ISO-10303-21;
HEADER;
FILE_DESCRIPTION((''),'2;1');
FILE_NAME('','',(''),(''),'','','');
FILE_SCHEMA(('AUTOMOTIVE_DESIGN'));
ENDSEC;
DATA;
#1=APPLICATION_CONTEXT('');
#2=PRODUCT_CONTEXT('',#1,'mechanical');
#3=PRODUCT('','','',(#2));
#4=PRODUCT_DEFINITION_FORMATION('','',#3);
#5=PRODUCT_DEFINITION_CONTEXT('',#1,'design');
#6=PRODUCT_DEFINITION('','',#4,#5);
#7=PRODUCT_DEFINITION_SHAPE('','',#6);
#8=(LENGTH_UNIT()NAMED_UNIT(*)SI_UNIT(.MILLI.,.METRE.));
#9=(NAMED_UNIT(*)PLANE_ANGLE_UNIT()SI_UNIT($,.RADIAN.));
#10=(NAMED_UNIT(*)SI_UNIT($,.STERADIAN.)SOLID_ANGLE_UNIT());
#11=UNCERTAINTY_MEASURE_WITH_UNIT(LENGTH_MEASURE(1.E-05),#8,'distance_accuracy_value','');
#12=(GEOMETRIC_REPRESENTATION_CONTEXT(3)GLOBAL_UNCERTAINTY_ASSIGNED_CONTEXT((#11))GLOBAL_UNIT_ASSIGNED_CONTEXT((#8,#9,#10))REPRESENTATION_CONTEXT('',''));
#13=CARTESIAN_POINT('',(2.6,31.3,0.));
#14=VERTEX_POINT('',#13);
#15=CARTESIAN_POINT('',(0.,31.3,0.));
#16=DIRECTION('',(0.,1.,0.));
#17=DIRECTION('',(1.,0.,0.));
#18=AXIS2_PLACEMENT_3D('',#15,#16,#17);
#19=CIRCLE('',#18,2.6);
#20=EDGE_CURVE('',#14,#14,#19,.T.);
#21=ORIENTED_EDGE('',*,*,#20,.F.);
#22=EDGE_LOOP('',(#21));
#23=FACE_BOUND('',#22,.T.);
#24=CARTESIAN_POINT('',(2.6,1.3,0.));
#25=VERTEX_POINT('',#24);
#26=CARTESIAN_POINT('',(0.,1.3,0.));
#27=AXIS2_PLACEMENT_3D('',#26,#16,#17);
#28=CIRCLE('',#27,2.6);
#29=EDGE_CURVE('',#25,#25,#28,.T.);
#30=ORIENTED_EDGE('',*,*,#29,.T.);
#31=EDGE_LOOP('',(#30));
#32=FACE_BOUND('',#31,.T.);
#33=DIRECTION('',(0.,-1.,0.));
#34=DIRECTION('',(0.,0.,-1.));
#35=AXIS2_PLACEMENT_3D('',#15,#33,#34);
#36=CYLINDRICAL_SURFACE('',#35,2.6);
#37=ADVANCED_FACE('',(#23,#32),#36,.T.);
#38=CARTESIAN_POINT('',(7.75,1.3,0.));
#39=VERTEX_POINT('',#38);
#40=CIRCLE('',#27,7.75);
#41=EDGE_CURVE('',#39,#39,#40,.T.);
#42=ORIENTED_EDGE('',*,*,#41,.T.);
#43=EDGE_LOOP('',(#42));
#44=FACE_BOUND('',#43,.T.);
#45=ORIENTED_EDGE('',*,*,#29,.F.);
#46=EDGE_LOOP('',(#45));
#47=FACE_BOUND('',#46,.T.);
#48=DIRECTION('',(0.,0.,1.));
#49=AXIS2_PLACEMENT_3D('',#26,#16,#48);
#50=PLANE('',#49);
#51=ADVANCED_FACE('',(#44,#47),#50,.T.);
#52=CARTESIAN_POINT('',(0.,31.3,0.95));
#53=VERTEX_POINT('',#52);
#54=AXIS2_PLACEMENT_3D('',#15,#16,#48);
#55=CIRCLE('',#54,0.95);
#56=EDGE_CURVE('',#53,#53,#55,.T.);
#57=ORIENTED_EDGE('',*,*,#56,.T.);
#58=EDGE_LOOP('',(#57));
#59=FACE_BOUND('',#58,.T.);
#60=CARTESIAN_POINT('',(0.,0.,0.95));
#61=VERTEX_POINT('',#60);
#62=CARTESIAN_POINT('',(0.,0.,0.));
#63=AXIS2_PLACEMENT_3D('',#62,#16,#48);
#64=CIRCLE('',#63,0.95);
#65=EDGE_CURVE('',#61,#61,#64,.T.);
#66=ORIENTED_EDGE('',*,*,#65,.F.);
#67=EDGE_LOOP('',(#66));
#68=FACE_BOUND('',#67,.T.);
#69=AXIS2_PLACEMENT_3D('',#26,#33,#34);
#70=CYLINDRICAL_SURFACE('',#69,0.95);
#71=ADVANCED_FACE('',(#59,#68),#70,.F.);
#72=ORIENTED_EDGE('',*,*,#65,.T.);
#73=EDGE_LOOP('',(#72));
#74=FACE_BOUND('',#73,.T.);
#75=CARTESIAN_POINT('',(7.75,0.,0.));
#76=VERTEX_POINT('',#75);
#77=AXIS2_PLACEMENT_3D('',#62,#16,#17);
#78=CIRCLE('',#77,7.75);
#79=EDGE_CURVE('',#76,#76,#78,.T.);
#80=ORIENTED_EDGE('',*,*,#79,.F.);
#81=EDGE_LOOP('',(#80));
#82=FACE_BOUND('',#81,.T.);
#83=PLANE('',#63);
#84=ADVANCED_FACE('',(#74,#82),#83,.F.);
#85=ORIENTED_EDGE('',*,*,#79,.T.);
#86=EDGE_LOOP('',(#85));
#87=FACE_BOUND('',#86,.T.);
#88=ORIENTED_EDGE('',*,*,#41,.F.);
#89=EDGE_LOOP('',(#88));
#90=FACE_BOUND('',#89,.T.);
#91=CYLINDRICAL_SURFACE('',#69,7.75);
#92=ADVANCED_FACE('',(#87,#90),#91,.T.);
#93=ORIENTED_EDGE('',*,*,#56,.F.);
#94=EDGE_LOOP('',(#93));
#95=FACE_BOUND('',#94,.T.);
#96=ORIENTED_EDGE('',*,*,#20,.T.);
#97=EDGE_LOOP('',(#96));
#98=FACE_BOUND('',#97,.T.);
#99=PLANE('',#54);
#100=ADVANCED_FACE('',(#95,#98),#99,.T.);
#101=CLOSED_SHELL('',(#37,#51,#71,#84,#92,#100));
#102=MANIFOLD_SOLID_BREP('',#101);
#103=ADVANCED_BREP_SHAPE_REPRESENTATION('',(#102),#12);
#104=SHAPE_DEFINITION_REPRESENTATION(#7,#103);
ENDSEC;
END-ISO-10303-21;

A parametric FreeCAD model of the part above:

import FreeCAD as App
import Part
import Sketcher
Q = App.Units.Quantity

doc = App.newDocument("Part")
params = doc.addObject("Spreadsheet::Sheet", "Params")
for row, (alias, value) in enumerate([
    ("sketch1_diameter", "15.5 mm"),
    ("sketch1_diameter2", "1.9 mm"),
    ("pad1_length", "1.3 mm"),
    ("sketch2_diameter", "5.2 mm"),
    ("sketch2_diameter2", "1.9 mm"),
    ("pad2_length", "30 mm"),
], start=1):
    params.set(f"A{row}", alias)
    params.set(f"B{row}", "=" + value)
    params.setAlias(f"B{row}", alias)

body = doc.addObject("PartDesign::Body", "Body")

# Sketch on XZ plane
sketch1 = body.newObject("Sketcher::SketchObject", "Sketch")
sketch1.AttachmentSupport = (doc.getObject("XZ_Plane"), [""])
sketch1.MapMode = "FlatFace"
sketch1.addGeometry(Part.Circle(App.Vector(0, 0, 0), App.Vector(0, 0, 1), 7.8), False)
sketch1.addGeometry(Part.Circle(App.Vector(0, 0, 0), App.Vector(0, 0, 1), 0.9), False)
sketch1.addConstraint(Sketcher.Constraint("Coincident", 0, 3, -1, 1))
sketch1.addConstraint(Sketcher.Constraint("Coincident", 1, 3, -1, 1))
sketch1.addConstraint(Sketcher.Constraint("Diameter", 0, Q("15.5 mm")))
sketch1.addConstraint(Sketcher.Constraint("Diameter", 1, Q("1.9 mm")))
sketch1.setExpression("Constraints[2]", "Params.sketch1_diameter")
sketch1.setExpression("Constraints[3]", "Params.sketch1_diameter2")
pad1 = body.newObject("PartDesign::Pad", "Pad")
pad1.Profile = sketch1
pad1.setExpression("Length", "Params.pad1_length")
pad1.Reversed = True

# Sketch on XZ plane
sketch2 = body.newObject("Sketcher::SketchObject", "Sketch001")
sketch2.AttachmentSupport = (doc.getObject("XZ_Plane"), [""])
sketch2.MapMode = "FlatFace"
sketch2.AttachmentOffset = App.Placement(App.Vector(0, 0, -1.3), App.Rotation())
sketch2.addGeometry(Part.Circle(App.Vector(0, 0, 0), App.Vector(0, 0, 1), 2.6), False)
sketch2.addGeometry(Part.Circle(App.Vector(0, 0, 0), App.Vector(0, 0, 1), 0.9), False)
sketch2.addConstraint(Sketcher.Constraint("Coincident", 0, 3, -1, 1))
sketch2.addConstraint(Sketcher.Constraint("Coincident", 1, 3, -1, 1))
sketch2.addConstraint(Sketcher.Constraint("Diameter", 0, Q("5.2 mm")))
sketch2.addConstraint(Sketcher.Constraint("Diameter", 1, Q("1.9 mm")))
sketch2.setExpression("Constraints[2]", "Params.sketch2_diameter")
sketch2.setExpression("Constraints[3]", "Params.sketch2_diameter2")
pad2 = body.newObject("PartDesign::Pad", "Pad001")
pad2.Profile = sketch2
pad2.setExpression("Length", "Params.pad2_length")
pad2.Reversed = True

doc.recompute()
